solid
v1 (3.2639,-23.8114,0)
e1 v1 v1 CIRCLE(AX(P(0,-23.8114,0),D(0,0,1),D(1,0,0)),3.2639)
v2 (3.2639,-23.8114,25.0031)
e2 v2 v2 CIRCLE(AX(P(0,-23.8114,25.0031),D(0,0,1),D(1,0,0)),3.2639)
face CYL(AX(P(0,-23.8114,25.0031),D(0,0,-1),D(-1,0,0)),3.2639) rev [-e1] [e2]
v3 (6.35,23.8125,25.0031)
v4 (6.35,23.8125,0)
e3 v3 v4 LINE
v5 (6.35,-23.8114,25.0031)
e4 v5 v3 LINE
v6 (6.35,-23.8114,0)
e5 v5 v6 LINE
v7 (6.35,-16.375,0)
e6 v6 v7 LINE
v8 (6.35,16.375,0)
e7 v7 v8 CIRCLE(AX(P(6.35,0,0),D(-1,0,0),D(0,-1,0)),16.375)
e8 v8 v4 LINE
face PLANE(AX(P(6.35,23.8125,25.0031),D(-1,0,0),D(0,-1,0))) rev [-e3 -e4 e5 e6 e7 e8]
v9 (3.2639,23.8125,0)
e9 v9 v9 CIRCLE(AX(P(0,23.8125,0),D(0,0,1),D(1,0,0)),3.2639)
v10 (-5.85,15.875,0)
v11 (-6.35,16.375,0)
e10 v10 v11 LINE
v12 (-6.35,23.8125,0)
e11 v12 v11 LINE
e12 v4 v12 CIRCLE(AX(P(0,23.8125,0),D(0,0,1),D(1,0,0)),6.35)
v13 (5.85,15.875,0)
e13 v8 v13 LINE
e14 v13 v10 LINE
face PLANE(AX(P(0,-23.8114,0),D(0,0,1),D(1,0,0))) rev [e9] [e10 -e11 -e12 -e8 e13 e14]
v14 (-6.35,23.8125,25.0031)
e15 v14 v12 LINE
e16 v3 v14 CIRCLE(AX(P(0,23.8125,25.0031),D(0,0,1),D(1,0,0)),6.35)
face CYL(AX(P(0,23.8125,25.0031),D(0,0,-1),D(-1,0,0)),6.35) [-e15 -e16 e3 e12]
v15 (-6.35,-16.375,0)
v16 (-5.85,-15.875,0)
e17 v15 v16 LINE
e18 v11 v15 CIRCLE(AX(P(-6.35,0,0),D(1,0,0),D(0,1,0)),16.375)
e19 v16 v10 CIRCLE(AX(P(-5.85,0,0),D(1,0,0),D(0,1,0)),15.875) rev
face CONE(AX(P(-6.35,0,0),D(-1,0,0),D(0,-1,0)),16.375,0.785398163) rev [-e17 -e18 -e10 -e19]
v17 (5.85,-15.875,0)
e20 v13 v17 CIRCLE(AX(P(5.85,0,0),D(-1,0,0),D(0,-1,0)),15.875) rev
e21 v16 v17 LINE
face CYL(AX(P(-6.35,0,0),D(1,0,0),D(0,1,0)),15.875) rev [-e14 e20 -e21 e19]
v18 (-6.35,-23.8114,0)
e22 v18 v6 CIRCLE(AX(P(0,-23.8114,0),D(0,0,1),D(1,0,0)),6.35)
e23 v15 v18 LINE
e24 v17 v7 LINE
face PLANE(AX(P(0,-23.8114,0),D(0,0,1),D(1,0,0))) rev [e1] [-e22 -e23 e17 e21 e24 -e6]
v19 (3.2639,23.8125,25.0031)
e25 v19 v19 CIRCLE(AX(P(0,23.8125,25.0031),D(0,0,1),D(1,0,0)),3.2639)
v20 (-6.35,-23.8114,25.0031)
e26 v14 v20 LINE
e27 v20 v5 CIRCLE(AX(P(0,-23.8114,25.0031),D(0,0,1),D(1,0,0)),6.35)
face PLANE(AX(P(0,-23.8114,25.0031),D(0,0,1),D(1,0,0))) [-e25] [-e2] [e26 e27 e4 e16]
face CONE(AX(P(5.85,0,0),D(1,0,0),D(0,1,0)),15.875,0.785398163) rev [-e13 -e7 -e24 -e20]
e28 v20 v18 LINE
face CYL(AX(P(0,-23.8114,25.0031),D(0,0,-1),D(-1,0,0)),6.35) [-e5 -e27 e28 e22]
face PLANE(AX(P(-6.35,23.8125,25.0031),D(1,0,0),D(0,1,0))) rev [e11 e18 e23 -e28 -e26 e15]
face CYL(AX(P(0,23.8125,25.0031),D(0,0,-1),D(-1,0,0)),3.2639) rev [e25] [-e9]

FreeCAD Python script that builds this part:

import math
import FreeCAD as App
import Part
import Sketcher
Q = App.Units.Quantity


def edges_at(feature, points):
    """Names of the edges that pass closest to the given points."""
    edges = feature.Shape.Edges
    near = lambda p: min(range(len(edges)), key=lambda i: edges[i].distToShape(Part.Vertex(*p))[0])
    return sorted({f"Edge{near(p) + 1}" for p in points})

doc = App.newDocument("Part")
params = doc.addObject("Spreadsheet::Sheet", "Params")
for row, (alias, value) in enumerate([
    ("sketch1_radius", "0.25 in"),
    ("sketch1_diameter", "0.257 in"),
    ("pad1_length", "25.0031 mm"),
    ("sketch2_diameter", "1.25 in"),
    ("chamfer_size", "0.5 mm"),
    ("chamfer2_size", "0.5 mm"),
], start=1):
    params.set(f"A{row}", alias)
    params.set(f"B{row}", "=" + value)
    params.setAlias(f"B{row}", alias)

body = doc.addObject("PartDesign::Body", "Body")

# Sketch on XY plane
sketch1 = doc.addObject("Sketcher::SketchObject", "Sketch")
body.addObject(sketch1)
sketch1.AttachmentSupport = (doc.XY_Plane, [""])
sketch1.MapMode = "FlatFace"
sketch1.addGeometry([
    Part.LineSegment(App.Vector(-6.3, 23.8, 0), App.Vector(-6.3, -23.8, 0)),  # 0
    Part.ArcOfCircle(Part.Circle(App.Vector(0, -23.8, 0), App.Vector(0, 0, 1), 6.3), math.radians(180), math.radians(360)),  # 1
    Part.LineSegment(App.Vector(6.3, -23.8, 0), App.Vector(6.3, 23.8, 0)),  # 2
    Part.ArcOfCircle(Part.Circle(App.Vector(0, 23.8, 0), App.Vector(0, 0, 1), 6.3), math.radians(0), math.radians(180)),  # 3
    Part.Circle(App.Vector(0, -23.8, 0), App.Vector(0, 0, 1), 3.3),  # 4
    Part.Circle(App.Vector(0, 23.8, 0), App.Vector(0, 0, 1), 3.3),  # 5
], False)
sketch1.addConstraint([
    Sketcher.Constraint("Tangent", 0, 2, 1, 1),
    Sketcher.Constraint("Tangent", 1, 2, 2, 1),
    Sketcher.Constraint("Tangent", 2, 2, 3, 1),
    Sketcher.Constraint("Tangent", 3, 2, 0, 1),
    Sketcher.Constraint("Vertical", 0),
    Sketcher.Constraint("Vertical", 2),
    Sketcher.Constraint("Coincident", 4, 3, 1, 3),
    Sketcher.Constraint("Coincident", 5, 3, 3, 3),
    Sketcher.Constraint("Equal", 4, 5),
    Sketcher.Constraint("PointOnObject", 1, 3, -2),
    Sketcher.Constraint("Radius", 1, Q("0.25 in")),
    Sketcher.Constraint("Diameter", 4, Q("0.257 in")),
    Sketcher.Constraint("DistanceY", -1, 1, 3, 3, Q("0.9375 in")),
    Sketcher.Constraint("DistanceY", 0, 2, 0, 1, Q("47.6239 mm")),
])
sketch1.setExpression("Constraints[10]", "Params.sketch1_radius")
sketch1.setExpression("Constraints[11]", "Params.sketch1_diameter")
pad1 = doc.addObject("PartDesign::Pad", "Pad")
body.addObject(pad1)
pad1.Profile = sketch1
pad1.setExpression("Length", "Params.pad1_length")

# Sketch on YZ plane
sketch2 = doc.addObject("Sketcher::SketchObject", "Sketch001")
body.addObject(sketch2)
sketch2.AttachmentSupport = (doc.YZ_Plane, [""])
sketch2.MapMode = "FlatFace"
sketch2.AttachmentOffset = App.Placement(App.Vector(0, 0, 0.25 * 25.4), App.Rotation())
sketch2.addGeometry(Part.Circle(App.Vector(0, 0, 0), App.Vector(0, 0, 1), 16), False)
sketch2.addConstraint([
    Sketcher.Constraint("Coincident", 0, 3, -1, 1),
    Sketcher.Constraint("Diameter", 0, Q("1.25 in")),
])
sketch2.setExpression("Constraints[1]", "Params.sketch2_diameter")
pocket1 = doc.addObject("PartDesign::Pocket", "Pocket")
body.addObject(pocket1)
pocket1.Profile = sketch2
pocket1.Type = "ThroughAll"
doc.recompute()

chamfer = doc.addObject("PartDesign::Chamfer", "Chamfer")
body.addObject(chamfer)
chamfer.Base = (pocket1, edges_at(pocket1, [(6.35, 0, 15.875)]))
chamfer.setExpression("Size", "Params.chamfer_size")
doc.recompute()

chamfer2 = doc.addObject("PartDesign::Chamfer", "Chamfer001")
body.addObject(chamfer2)
chamfer2.Base = (chamfer, edges_at(chamfer, [(-6.35, 0, 15.875)]))
chamfer2.setExpression("Size", "Params.chamfer2_size")

doc.recompute()
